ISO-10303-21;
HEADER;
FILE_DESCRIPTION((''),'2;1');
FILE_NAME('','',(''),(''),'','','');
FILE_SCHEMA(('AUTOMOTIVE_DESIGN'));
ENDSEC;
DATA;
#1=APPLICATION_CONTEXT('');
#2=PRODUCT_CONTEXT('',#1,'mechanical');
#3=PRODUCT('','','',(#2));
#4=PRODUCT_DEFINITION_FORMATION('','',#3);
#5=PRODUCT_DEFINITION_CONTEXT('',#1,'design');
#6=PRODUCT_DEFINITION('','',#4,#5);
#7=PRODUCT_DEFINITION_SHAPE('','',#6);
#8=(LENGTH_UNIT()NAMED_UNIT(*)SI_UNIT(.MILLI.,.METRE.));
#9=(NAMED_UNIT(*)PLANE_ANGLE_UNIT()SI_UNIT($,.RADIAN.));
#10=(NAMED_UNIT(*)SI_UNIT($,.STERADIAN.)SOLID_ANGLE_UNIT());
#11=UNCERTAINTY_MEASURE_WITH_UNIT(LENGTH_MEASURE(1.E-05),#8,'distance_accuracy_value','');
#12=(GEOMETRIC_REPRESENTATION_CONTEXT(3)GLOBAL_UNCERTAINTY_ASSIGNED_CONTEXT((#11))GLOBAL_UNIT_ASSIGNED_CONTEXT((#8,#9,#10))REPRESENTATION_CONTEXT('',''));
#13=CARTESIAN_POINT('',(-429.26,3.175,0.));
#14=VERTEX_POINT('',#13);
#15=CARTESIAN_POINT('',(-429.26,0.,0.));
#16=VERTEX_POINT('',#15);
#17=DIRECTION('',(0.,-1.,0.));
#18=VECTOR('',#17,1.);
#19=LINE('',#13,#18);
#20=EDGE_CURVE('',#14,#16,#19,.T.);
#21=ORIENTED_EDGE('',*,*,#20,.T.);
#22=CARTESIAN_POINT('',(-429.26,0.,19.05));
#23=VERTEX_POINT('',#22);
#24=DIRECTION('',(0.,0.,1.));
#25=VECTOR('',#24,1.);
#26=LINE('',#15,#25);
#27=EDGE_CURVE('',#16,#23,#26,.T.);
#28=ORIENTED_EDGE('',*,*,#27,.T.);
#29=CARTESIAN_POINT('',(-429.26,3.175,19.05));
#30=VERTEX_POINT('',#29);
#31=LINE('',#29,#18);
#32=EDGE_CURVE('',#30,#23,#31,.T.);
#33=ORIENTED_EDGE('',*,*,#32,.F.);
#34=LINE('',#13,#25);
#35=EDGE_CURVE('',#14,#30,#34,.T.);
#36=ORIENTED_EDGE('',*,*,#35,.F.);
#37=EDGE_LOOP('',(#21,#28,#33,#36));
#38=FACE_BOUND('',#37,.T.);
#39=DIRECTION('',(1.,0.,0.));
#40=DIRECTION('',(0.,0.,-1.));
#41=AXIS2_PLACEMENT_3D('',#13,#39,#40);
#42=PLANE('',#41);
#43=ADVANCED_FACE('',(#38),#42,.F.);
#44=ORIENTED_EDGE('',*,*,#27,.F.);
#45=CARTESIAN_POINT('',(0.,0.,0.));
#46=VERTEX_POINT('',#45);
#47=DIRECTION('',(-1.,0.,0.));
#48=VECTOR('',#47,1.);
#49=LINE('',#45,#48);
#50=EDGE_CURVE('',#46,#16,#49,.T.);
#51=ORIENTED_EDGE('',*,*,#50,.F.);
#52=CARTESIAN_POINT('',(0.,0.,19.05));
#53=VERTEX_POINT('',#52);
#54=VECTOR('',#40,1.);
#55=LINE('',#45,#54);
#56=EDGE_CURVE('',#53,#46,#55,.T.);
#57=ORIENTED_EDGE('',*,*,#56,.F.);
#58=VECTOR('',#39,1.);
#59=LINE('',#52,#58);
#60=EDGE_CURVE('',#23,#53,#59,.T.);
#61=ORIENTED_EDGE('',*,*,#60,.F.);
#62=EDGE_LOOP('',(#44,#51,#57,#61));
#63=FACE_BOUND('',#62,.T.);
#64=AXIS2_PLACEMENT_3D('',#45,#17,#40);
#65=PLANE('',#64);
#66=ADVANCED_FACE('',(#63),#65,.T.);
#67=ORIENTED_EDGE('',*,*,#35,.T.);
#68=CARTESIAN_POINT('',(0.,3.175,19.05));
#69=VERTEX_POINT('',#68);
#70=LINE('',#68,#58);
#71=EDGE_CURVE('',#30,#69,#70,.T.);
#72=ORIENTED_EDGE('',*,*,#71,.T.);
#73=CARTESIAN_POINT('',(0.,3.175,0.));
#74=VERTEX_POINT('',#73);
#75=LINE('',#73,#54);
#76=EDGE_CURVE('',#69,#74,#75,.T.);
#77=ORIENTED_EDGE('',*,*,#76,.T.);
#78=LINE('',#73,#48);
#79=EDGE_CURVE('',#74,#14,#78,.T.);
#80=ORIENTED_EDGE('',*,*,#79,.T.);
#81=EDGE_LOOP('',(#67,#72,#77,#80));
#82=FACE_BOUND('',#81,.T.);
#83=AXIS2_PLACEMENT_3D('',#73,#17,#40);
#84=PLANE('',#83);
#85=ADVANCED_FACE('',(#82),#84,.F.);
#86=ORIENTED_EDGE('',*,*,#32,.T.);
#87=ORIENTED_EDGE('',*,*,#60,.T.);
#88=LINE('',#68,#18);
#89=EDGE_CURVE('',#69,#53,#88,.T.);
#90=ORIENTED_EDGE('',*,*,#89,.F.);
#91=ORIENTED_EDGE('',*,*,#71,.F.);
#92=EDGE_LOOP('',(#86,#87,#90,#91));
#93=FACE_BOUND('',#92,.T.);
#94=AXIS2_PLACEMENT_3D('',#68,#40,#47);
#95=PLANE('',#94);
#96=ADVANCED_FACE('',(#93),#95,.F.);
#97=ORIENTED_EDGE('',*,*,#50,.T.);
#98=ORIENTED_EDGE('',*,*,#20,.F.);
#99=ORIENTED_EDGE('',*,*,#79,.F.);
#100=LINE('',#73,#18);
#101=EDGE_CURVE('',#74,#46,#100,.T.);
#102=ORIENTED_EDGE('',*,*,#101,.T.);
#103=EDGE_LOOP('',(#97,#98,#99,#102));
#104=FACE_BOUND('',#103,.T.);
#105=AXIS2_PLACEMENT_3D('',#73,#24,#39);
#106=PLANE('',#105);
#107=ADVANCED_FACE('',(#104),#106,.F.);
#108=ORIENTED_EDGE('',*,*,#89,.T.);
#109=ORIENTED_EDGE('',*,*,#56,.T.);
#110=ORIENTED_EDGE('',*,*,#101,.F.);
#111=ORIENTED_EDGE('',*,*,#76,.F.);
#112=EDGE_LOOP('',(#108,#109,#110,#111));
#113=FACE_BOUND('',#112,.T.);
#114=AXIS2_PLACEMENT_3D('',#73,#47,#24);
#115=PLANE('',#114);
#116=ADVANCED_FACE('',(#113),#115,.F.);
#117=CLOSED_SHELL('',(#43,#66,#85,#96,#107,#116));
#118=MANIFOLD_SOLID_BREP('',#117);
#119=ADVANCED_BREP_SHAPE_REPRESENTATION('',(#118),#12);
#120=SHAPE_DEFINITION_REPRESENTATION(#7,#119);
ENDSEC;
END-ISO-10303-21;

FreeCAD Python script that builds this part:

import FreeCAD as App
import Part
import Sketcher
from FreeCAD import Vector
Q = App.Units.Quantity

doc = App.newDocument("Part")
body = doc.addObject("PartDesign::Body", "Body")

sketch1 = body.newObject("Sketcher::SketchObject", "Sketch")
sketch1.AttachmentSupport = (doc.getObject("XZ_Plane"), [""])
sketch1.MapMode = "FlatFace"
sketch1.addGeometry(Part.LineSegment(Vector(-429.26, 0, 0), Vector(-429.26, 19.05, 0)), False)
sketch1.addGeometry(Part.LineSegment(Vector(-429.26, 19.05, 0), Vector(0, 19.05, 0)), False)
sketch1.addGeometry(Part.LineSegment(Vector(0, 19.05, 0), Vector(0, 0, 0)), False)
sketch1.addGeometry(Part.LineSegment(Vector(0, 0, 0), Vector(-429.26, 0, 0)), False)
sketch1.addConstraint(Sketcher.Constraint("Coincident", 0, 2, 1, 1))
sketch1.addConstraint(Sketcher.Constraint("Coincident", 1, 2, 2, 1))
sketch1.addConstraint(Sketcher.Constraint("Coincident", 2, 2, 3, 1))
sketch1.addConstraint(Sketcher.Constraint("Coincident", 3, 2, 0, 1))
sketch1.addConstraint(Sketcher.Constraint("Vertical", 0))
sketch1.addConstraint(Sketcher.Constraint("Horizontal", 1))
sketch1.addConstraint(Sketcher.Constraint("Vertical", 2))
sketch1.addConstraint(Sketcher.Constraint("Horizontal", 3))
sketch1.addConstraint(Sketcher.Constraint("Coincident", 2, 2, -1, 1))
sketch1.addConstraint(Sketcher.Constraint("DistanceX", 1, 1, 1, 2, Q("16.9 in")))
sketch1.addConstraint(Sketcher.Constraint("DistanceY", 0, 1, 0, 2, Q("0.75 in")))
pad1 = body.newObject("PartDesign::Pad", "Pad")
pad1.Profile = sketch1
pad1.Length = Q("0.125 in")
pad1.Reversed = True

doc.recompute()
